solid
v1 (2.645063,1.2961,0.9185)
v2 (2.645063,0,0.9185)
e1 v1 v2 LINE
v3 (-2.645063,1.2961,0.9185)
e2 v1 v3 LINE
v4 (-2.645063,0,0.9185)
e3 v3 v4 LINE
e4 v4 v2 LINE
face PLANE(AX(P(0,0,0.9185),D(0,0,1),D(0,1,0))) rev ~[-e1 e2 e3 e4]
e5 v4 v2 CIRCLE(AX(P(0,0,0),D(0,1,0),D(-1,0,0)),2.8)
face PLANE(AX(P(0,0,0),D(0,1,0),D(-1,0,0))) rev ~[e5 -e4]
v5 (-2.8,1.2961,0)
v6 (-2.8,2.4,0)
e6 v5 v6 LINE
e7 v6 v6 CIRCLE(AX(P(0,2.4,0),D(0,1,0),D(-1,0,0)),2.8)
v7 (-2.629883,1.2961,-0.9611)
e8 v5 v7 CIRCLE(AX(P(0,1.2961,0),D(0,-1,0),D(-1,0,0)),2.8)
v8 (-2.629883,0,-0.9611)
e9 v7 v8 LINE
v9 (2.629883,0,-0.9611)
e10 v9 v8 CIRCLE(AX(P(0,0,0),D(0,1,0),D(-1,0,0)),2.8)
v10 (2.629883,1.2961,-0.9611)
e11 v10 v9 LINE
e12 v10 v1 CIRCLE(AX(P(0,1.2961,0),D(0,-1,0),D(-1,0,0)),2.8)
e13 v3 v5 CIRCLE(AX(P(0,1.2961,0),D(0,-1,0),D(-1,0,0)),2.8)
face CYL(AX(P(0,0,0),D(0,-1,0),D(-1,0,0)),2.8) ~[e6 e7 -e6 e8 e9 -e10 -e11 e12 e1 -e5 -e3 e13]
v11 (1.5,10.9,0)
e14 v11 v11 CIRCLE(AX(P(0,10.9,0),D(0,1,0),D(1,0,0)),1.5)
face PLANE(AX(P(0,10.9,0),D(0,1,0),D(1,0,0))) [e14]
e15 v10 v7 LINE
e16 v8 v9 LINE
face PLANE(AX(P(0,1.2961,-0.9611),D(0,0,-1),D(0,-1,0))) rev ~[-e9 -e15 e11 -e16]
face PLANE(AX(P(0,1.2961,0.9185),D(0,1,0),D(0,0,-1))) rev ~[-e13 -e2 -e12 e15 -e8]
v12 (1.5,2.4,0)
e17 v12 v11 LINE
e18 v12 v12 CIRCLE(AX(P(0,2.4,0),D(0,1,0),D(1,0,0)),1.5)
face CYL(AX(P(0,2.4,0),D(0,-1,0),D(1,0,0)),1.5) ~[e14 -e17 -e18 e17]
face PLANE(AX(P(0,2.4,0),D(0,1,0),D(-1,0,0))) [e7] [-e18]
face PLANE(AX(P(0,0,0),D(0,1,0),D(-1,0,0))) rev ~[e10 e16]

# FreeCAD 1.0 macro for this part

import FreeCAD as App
import Part
import Sketcher
from FreeCAD import Vector

doc = App.newDocument("Part")
body = doc.addObject("PartDesign::Body", "Body")

# Sketch on XZ plane
sketch1 = body.newObject("Sketcher::SketchObject", "Sketch")
sketch1.AttachmentSupport = (doc.getObject("XZ_Plane"), [""])
sketch1.MapMode = "FlatFace"
sketch1.addGeometry(Part.Circle(Vector(0, 0, 0), Vector(0, 0, 1), 2.8), False)
sketch1.addConstraint([
    Sketcher.Constraint("Coincident", 0, 3, -1, 1),
    Sketcher.Constraint("Diameter", 0, 5.6),
])
pad1 = body.newObject("PartDesign::Pad", "Pad")
pad1.Profile = sketch1
pad1.Length = 2.4
pad1.Reversed = True

# Sketch on YZ plane
sketch2 = body.newObject("Sketcher::SketchObject", "Sketch001")
sketch2.AttachmentSupport = (doc.getObject("YZ_Plane"), [""])
sketch2.MapMode = "FlatFace"
sketch2.addGeometry([
    Part.LineSegment(Vector(1.3, 0.9, 0), Vector(0, 0.9, 0)),
    Part.LineSegment(Vector(0, 0.9, 0), Vector(0, -1, 0)),
    Part.LineSegment(Vector(0, -1, 0), Vector(1.3, -1, 0)),
    Part.LineSegment(Vector(1.3, -1, 0), Vector(1.3, 0.9, 0)),
], False)
sketch2.addConstraint([
    Sketcher.Constraint("Coincident", 0, 2, 1, 1),
    Sketcher.Constraint("Coincident", 1, 2, 2, 1),
    Sketcher.Constraint("Coincident", 2, 2, 3, 1),
    Sketcher.Constraint("Coincident", 3, 2, 0, 1),
    Sketcher.Constraint("Horizontal", 0),
    Sketcher.Constraint("Vertical", 1),
    Sketcher.Constraint("Horizontal", 2),
    Sketcher.Constraint("Vertical", 3),
    Sketcher.Constraint("PointOnObject", 0, 2, -2),
    Sketcher.Constraint("DistanceX", 0, 2, 0, 1, 1.296),
    Sketcher.Constraint("DistanceY", 1, 2, 1, 1, 1.8796),
    Sketcher.Constraint("DistanceY", 1, 2, -1, 1, 0.961),
])
pocket1 = body.newObject("PartDesign::Pocket", "Pocket")
pocket1.Profile = sketch2
pocket1.Type = "ThroughAll"
pocket1.Midplane = True

# Sketch on XZ plane
sketch3 = body.newObject("Sketcher::SketchObject", "Sketch002")
sketch3.AttachmentSupport = (doc.getObject("XZ_Plane"), [""])
sketch3.MapMode = "FlatFace"
sketch3.AttachmentOffset = App.Placement(Vector(0, 0, -2.4), App.Rotation())
sketch3.addGeometry(Part.Circle(Vector(0, 0, 0), Vector(0, 0, 1), 1.5), False)
sketch3.addConstraint([
    Sketcher.Constraint("Coincident", 0, 3, -1, 1),
    Sketcher.Constraint("Diameter", 0, 3.0),
])
pad2 = body.newObject("PartDesign::Pad", "Pad001")
pad2.Profile = sketch3
pad2.Length = 8.5
pad2.Reversed = True

doc.recompute()
